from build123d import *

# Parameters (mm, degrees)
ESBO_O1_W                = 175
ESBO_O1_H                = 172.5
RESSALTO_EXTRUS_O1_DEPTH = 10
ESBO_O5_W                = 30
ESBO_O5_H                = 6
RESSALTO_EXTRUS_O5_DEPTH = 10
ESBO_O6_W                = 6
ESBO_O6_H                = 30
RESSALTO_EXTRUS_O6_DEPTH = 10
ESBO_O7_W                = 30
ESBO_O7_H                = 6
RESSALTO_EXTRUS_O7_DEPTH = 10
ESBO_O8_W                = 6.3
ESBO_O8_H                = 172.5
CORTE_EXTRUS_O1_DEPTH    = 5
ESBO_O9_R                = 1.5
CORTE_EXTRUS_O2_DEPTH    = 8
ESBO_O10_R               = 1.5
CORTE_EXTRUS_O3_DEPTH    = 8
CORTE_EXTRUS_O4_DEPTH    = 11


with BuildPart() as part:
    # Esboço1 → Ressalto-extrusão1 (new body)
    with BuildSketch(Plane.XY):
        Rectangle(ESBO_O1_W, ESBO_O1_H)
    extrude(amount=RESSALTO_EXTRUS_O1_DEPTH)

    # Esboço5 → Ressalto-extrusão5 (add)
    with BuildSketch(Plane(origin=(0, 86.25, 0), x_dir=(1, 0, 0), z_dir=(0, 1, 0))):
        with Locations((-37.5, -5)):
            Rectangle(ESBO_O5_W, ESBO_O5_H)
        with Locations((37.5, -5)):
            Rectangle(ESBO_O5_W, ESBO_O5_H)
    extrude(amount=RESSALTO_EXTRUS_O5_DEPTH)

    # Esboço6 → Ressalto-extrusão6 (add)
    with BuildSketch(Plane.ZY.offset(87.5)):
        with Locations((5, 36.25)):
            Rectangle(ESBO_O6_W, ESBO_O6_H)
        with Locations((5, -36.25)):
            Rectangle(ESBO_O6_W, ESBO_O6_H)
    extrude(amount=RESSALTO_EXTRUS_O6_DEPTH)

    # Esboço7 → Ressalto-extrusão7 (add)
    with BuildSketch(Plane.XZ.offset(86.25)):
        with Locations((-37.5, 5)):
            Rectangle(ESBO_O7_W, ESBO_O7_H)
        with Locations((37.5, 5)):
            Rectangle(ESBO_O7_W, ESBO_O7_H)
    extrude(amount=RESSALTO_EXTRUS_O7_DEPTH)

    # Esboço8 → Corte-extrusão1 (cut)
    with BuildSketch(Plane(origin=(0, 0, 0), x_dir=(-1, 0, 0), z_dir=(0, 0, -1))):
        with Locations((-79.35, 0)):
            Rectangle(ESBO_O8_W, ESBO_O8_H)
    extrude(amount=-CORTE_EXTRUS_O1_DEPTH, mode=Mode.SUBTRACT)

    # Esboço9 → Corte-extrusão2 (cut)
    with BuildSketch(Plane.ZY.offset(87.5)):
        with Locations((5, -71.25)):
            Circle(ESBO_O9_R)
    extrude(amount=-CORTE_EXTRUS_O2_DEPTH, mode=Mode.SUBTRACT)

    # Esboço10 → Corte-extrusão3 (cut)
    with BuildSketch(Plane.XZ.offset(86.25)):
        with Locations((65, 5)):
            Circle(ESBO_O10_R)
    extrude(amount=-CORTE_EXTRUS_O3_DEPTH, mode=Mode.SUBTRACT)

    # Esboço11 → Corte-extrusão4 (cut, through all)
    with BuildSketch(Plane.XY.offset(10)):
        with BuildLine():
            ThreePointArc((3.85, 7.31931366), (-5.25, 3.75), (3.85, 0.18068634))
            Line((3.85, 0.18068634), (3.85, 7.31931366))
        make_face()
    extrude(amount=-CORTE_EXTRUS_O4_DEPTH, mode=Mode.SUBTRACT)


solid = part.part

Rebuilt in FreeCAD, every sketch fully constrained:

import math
import FreeCAD as App
import Part
import Sketcher
from FreeCAD import Vector

doc = App.newDocument("Part")
body = doc.addObject("PartDesign::Body", "Body")

# Sketch on XY plane
sketch1 = body.newObject("Sketcher::SketchObject", "Sketch")
sketch1.AttachmentSupport = (doc.getObject("XY_Plane"), [""])
sketch1.MapMode = "FlatFace"
sketch1.addGeometry([
    Part.LineSegment(Vector(-88, 86, 0), Vector(-88, -86, 0)),
    Part.LineSegment(Vector(-88, -86, 0), Vector(88, -86, 0)),
    Part.LineSegment(Vector(88, -86, 0), Vector(88, 86, 0)),
    Part.LineSegment(Vector(88, 86, 0), Vector(-88, 86, 0)),
], False)
sketch1.addConstraint([
    Sketcher.Constraint("Coincident", 0, 2, 1, 1),
    Sketcher.Constraint("Coincident", 1, 2, 2, 1),
    Sketcher.Constraint("Coincident", 2, 2, 3, 1),
    Sketcher.Constraint("Coincident", 3, 2, 0, 1),
    Sketcher.Constraint("Vertical", 0),
    Sketcher.Constraint("Horizontal", 1),
    Sketcher.Constraint("Vertical", 2),
    Sketcher.Constraint("Horizontal", 3),
    Sketcher.Constraint("Symmetric", 0, 2, 2, 2, -1, 1),
    Sketcher.Constraint("DistanceX", 1, 1, 1, 2, 175.0),
    Sketcher.Constraint("DistanceY", 0, 2, 0, 1, 172.5),
])
pad1 = body.newObject("PartDesign::Pad", "Pad")
pad1.Profile = sketch1
pad1.Length = 10

# Sketch on XZ plane
sketch2 = body.newObject("Sketcher::SketchObject", "Sketch001")
sketch2.AttachmentSupport = (doc.getObject("XZ_Plane"), [""])
sketch2.MapMode = "FlatFace"
sketch2.AttachmentOffset = App.Placement(Vector(0, 0, -86.25), App.Rotation())
sketch2.addGeometry([
    Part.LineSegment(Vector(-52, 2, 0), Vector(-52, 8, 0)),  # 0
    Part.LineSegment(Vector(-52, 8, 0), Vector(-22, 8, 0)),  # 1
    Part.LineSegment(Vector(-22, 8, 0), Vector(-22, 2, 0)),  # 2
    Part.LineSegment(Vector(-22, 2, 0), Vector(-52, 2, 0)),  # 3
    Part.LineSegment(Vector(22, 2, 0), Vector(22, 8, 0)),  # 4
    Part.LineSegment(Vector(22, 8, 0), Vector(52, 8, 0)),  # 5
    Part.LineSegment(Vector(52, 8, 0), Vector(52, 2, 0)),  # 6
    Part.LineSegment(Vector(52, 2, 0), Vector(22, 2, 0)),  # 7
], False)
sketch2.addConstraint([
    Sketcher.Constraint("Coincident", 0, 2, 1, 1),
    Sketcher.Constraint("Coincident", 1, 2, 2, 1),
    Sketcher.Constraint("Coincident", 2, 2, 3, 1),
    Sketcher.Constraint("Coincident", 3, 2, 0, 1),
    Sketcher.Constraint("Coincident", 4, 2, 5, 1),
    Sketcher.Constraint("Coincident", 5, 2, 6, 1),
    Sketcher.Constraint("Coincident", 6, 2, 7, 1),
    Sketcher.Constraint("Coincident", 7, 2, 4, 1),
    Sketcher.Constraint("Vertical", 0),
    Sketcher.Constraint("Horizontal", 1),
    Sketcher.Constraint("Vertical", 2),
    Sketcher.Constraint("Horizontal", 3),
    Sketcher.Constraint("Vertical", 4),
    Sketcher.Constraint("Horizontal", 5),
    Sketcher.Constraint("Vertical", 6),
    Sketcher.Constraint("Horizontal", 7),
    Sketcher.Constraint("Symmetric", 1, 2, 4, 2, -2),
    Sketcher.Constraint("Symmetric", 3, 2, 6, 2, -2),
    Sketcher.Constraint("DistanceX", 1, 1, 1, 2, 30.0),
    Sketcher.Constraint("DistanceY", 0, 1, 0, 2, 6.0),
    Sketcher.Constraint("DistanceY", -1, 1, 0, 2, 8.0),
    Sketcher.Constraint("DistanceX", 1, 2, 4, 2, 45.0),
])
pad2 = body.newObject("PartDesign::Pad", "Pad001")
pad2.Profile = sketch2
pad2.Length = 10
pad2.Reversed = True

# Sketch on YZ plane
sketch3 = body.newObject("Sketcher::SketchObject", "Sketch002")
sketch3.AttachmentSupport = (doc.getObject("YZ_Plane"), [""])
sketch3.MapMode = "FlatFace"
sketch3.AttachmentOffset = App.Placement(Vector(0, 0, -87.5), App.Rotation())
sketch3.addGeometry([
    Part.LineSegment(Vector(51, 2, 0), Vector(21, 2, 0)),  # 0
    Part.LineSegment(Vector(21, 2, 0), Vector(21, 8, 0)),  # 1
    Part.LineSegment(Vector(21, 8, 0), Vector(51, 8, 0)),  # 2
    Part.LineSegment(Vector(51, 8, 0), Vector(51, 2, 0)),  # 3
    Part.LineSegment(Vector(-21, 2, 0), Vector(-51, 2, 0)),  # 4
    Part.LineSegment(Vector(-51, 2, 0), Vector(-51, 8, 0)),  # 5
    Part.LineSegment(Vector(-51, 8, 0), Vector(-21, 8, 0)),  # 6
    Part.LineSegment(Vector(-21, 8, 0), Vector(-21, 2, 0)),  # 7
], False)
sketch3.addConstraint([
    Sketcher.Constraint("Coincident", 0, 2, 1, 1),
    Sketcher.Constraint("Coincident", 1, 2, 2, 1),
    Sketcher.Constraint("Coincident", 2, 2, 3, 1),
    Sketcher.Constraint("Coincident", 3, 2, 0, 1),
    Sketcher.Constraint("Coincident", 4, 2, 5, 1),
    Sketcher.Constraint("Coincident", 5, 2, 6, 1),
    Sketcher.Constraint("Coincident", 6, 2, 7, 1),
    Sketcher.Constraint("Coincident", 7, 2, 4, 1),
    Sketcher.Constraint("Horizontal", 0),
    Sketcher.Constraint("Vertical", 1),
    Sketcher.Constraint("Horizontal", 2),
    Sketcher.Constraint("Vertical", 3),
    Sketcher.Constraint("Horizontal", 4),
    Sketcher.Constraint("Vertical", 5),
    Sketcher.Constraint("Horizontal", 6),
    Sketcher.Constraint("Vertical", 7),
    Sketcher.Constraint("Symmetric", 3, 2, 4, 2, -2),
    Sketcher.Constraint("Symmetric", 1, 2, 6, 2, -2),
    Sketcher.Constraint("DistanceX", 0, 2, 0, 1, 30.0),
    Sketcher.Constraint("DistanceY", 1, 1, 1, 2, 6.0),
    Sketcher.Constraint("DistanceY", -1, 1, 0, 2, 2.0),
    Sketcher.Constraint("DistanceX", 4, 2, 0, 2, 72.5),
])
pad3 = body.newObject("PartDesign::Pad", "Pad002")
pad3.Profile = sketch3
pad3.Length = 10
pad3.Reversed = True

# Sketch on XZ plane
sketch4 = body.newObject("Sketcher::SketchObject", "Sketch003")
sketch4.AttachmentSupport = (doc.getObject("XZ_Plane"), [""])
sketch4.MapMode = "FlatFace"
sketch4.AttachmentOffset = App.Placement(Vector(0, 0, 86.25), App.Rotation())
sketch4.addGeometry([
    Part.LineSegment(Vector(-52, 8, 0), Vector(-52, 2, 0)),  # 0
    Part.LineSegment(Vector(-52, 2, 0), Vector(-22, 2, 0)),  # 1
    Part.LineSegment(Vector(-22, 2, 0), Vector(-22, 8, 0)),  # 2
    Part.LineSegment(Vector(-22, 8, 0), Vector(-52, 8, 0)),  # 3
    Part.LineSegment(Vector(22, 8, 0), Vector(22, 2, 0)),  # 4
    Part.LineSegment(Vector(22, 2, 0), Vector(52, 2, 0)),  # 5
    Part.LineSegment(Vector(52, 2, 0), Vector(52, 8, 0)),  # 6
    Part.LineSegment(Vector(52, 8, 0), Vector(22, 8, 0)),  # 7
], False)
sketch4.addConstraint([
    Sketcher.Constraint("Coincident", 0, 2, 1, 1),
    Sketcher.Constraint("Coincident", 1, 2, 2, 1),
    Sketcher.Constraint("Coincident", 2, 2, 3, 1),
    Sketcher.Constraint("Coincident", 3, 2, 0, 1),
    Sketcher.Constraint("Coincident", 4, 2, 5, 1),
    Sketcher.Constraint("Coincident", 5, 2, 6, 1),
    Sketcher.Constraint("Coincident", 6, 2, 7, 1),
    Sketcher.Constraint("Coincident", 7, 2, 4, 1),
    Sketcher.Constraint("Vertical", 0),
    Sketcher.Constraint("Horizontal", 1),
    Sketcher.Constraint("Vertical", 2),
    Sketcher.Constraint("Horizontal", 3),
    Sketcher.Constraint("Vertical", 4),
    Sketcher.Constraint("Horizontal", 5),
    Sketcher.Constraint("Vertical", 6),
    Sketcher.Constraint("Horizontal", 7),
    Sketcher.Constraint("Symmetric", 1, 2, 4, 2, -2),
    Sketcher.Constraint("Symmetric", 3, 2, 6, 2, -2),
    Sketcher.Constraint("DistanceX", 1, 1, 1, 2, 30.0),
    Sketcher.Constraint("DistanceY", 0, 2, 0, 1, 6.0),
    Sketcher.Constraint("DistanceY", -1, 1, 0, 2, 2.0),
    Sketcher.Constraint("DistanceX", 1, 2, 4, 2, 45.0),
])
pad4 = body.newObject("PartDesign::Pad", "Pad003")
pad4.Profile = sketch4
pad4.Length = 10

# Sketch on XY plane
sketch5 = body.newObject("Sketcher::SketchObject", "Sketch004")
sketch5.AttachmentSupport = (doc.getObject("XY_Plane"), [""])
sketch5.MapMode = "FlatFace"
sketch5.addGeometry([
    Part.LineSegment(Vector(82, 86, 0), Vector(82, -86, 0)),
    Part.LineSegment(Vector(82, -86, 0), Vector(76, -86, 0)),
    Part.LineSegment(Vector(76, -86, 0), Vector(76, 86, 0)),
    Part.LineSegment(Vector(76, 86, 0), Vector(82, 86, 0)),
], False)
sketch5.addConstraint([
    Sketcher.Constraint("Coincident", 0, 2, 1, 1),
    Sketcher.Constraint("Coincident", 1, 2, 2, 1),
    Sketcher.Constraint("Coincident", 2, 2, 3, 1),
    Sketcher.Constraint("Coincident", 3, 2, 0, 1),
    Sketcher.Constraint("Vertical", 0),
    Sketcher.Constraint("Horizontal", 1),
    Sketcher.Constraint("Vertical", 2),
    Sketcher.Constraint("Horizontal", 3),
    Sketcher.Constraint("DistanceX", 1, 2, 1, 1, 6.3),
    Sketcher.Constraint("DistanceY", 0, 2, 0, 1, 172.5),
    Sketcher.Constraint("DistanceX", -1, 1, 0, 2, 82.5),
    Sketcher.Constraint("DistanceY", 0, 2, -1, 1, 86.25),
])
pocket1 = body.newObject("PartDesign::Pocket", "Pocket")
pocket1.Profile = sketch5
pocket1.Length = 5
pocket1.Reversed = True

# Sketch on YZ plane
sketch6 = body.newObject("Sketcher::SketchObject", "Sketch005")
sketch6.AttachmentSupport = (doc.getObject("YZ_Plane"), [""])
sketch6.MapMode = "FlatFace"
sketch6.AttachmentOffset = App.Placement(Vector(0, 0, -87.5), App.Rotation())
sketch6.addGeometry(Part.Circle(Vector(-71.2, 5, 0), Vector(0, 0, 1), 1.5), False)
sketch6.addConstraint([
    Sketcher.Constraint("Diameter", 0, 3.0),
    Sketcher.Constraint("DistanceY", -1, 1, 0, 3, 5.0),
    Sketcher.Constraint("DistanceX", 0, 3, -1, 1, 71.25),
])
pocket2 = body.newObject("PartDesign::Pocket", "Pocket001")
pocket2.Profile = sketch6
pocket2.Length = 8
pocket2.Reversed = True

# Sketch on XZ plane
sketch7 = body.newObject("Sketcher::SketchObject", "Sketch006")
sketch7.AttachmentSupport = (doc.getObject("XZ_Plane"), [""])
sketch7.MapMode = "FlatFace"
sketch7.AttachmentOffset = App.Placement(Vector(0, 0, 86.25), App.Rotation())
sketch7.addGeometry(Part.Circle(Vector(65, 5, 0), Vector(0, 0, 1), 1.5), False)
sketch7.addConstraint([
    Sketcher.Constraint("Diameter", 0, 3.0),
    Sketcher.Constraint("DistanceX", -1, 1, 0, 3, 65.0),
    Sketcher.Constraint("DistanceY", -1, 1, 0, 3, 5.0),
])
pocket3 = body.newObject("PartDesign::Pocket", "Pocket002")
pocket3.Profile = sketch7
pocket3.Length = 8

# Sketch on XY plane
sketch8 = body.newObject("Sketcher::SketchObject", "Sketch007")
sketch8.AttachmentSupport = (doc.getObject("XY_Plane"), [""])
sketch8.MapMode = "FlatFace"
sketch8.AttachmentOffset = App.Placement(Vector(0, 0, 10), App.Rotation())
sketch8.addGeometry([
    Part.ArcOfCircle(Part.Circle(Vector(0, 4, 0), Vector(0, 0, 1), 5), math.radians(43), math.radians(317)),
    Part.LineSegment(Vector(4, 0, 0), Vector(4, 7, 0)),
], False)
sketch8.addConstraint([
    Sketcher.Constraint("Coincident", 0, 1, 1, 2),
    Sketcher.Constraint("Coincident", 1, 1, 0, 2),
    Sketcher.Constraint("Vertical", 1),
    Sketcher.Constraint("PointOnObject", 0, 3, -2),
    Sketcher.Constraint("Radius", 0, 5.25),
    Sketcher.Constraint("DistanceY", -1, 1, 0, 3, 3.75),
    Sketcher.Constraint("DistanceX", -1, 1, 0, 1, 3.85),
])
pocket4 = body.newObject("PartDesign::Pocket", "Pocket003")
pocket4.Profile = sketch8
pocket4.Type = "ThroughAll"

doc.recompute()
